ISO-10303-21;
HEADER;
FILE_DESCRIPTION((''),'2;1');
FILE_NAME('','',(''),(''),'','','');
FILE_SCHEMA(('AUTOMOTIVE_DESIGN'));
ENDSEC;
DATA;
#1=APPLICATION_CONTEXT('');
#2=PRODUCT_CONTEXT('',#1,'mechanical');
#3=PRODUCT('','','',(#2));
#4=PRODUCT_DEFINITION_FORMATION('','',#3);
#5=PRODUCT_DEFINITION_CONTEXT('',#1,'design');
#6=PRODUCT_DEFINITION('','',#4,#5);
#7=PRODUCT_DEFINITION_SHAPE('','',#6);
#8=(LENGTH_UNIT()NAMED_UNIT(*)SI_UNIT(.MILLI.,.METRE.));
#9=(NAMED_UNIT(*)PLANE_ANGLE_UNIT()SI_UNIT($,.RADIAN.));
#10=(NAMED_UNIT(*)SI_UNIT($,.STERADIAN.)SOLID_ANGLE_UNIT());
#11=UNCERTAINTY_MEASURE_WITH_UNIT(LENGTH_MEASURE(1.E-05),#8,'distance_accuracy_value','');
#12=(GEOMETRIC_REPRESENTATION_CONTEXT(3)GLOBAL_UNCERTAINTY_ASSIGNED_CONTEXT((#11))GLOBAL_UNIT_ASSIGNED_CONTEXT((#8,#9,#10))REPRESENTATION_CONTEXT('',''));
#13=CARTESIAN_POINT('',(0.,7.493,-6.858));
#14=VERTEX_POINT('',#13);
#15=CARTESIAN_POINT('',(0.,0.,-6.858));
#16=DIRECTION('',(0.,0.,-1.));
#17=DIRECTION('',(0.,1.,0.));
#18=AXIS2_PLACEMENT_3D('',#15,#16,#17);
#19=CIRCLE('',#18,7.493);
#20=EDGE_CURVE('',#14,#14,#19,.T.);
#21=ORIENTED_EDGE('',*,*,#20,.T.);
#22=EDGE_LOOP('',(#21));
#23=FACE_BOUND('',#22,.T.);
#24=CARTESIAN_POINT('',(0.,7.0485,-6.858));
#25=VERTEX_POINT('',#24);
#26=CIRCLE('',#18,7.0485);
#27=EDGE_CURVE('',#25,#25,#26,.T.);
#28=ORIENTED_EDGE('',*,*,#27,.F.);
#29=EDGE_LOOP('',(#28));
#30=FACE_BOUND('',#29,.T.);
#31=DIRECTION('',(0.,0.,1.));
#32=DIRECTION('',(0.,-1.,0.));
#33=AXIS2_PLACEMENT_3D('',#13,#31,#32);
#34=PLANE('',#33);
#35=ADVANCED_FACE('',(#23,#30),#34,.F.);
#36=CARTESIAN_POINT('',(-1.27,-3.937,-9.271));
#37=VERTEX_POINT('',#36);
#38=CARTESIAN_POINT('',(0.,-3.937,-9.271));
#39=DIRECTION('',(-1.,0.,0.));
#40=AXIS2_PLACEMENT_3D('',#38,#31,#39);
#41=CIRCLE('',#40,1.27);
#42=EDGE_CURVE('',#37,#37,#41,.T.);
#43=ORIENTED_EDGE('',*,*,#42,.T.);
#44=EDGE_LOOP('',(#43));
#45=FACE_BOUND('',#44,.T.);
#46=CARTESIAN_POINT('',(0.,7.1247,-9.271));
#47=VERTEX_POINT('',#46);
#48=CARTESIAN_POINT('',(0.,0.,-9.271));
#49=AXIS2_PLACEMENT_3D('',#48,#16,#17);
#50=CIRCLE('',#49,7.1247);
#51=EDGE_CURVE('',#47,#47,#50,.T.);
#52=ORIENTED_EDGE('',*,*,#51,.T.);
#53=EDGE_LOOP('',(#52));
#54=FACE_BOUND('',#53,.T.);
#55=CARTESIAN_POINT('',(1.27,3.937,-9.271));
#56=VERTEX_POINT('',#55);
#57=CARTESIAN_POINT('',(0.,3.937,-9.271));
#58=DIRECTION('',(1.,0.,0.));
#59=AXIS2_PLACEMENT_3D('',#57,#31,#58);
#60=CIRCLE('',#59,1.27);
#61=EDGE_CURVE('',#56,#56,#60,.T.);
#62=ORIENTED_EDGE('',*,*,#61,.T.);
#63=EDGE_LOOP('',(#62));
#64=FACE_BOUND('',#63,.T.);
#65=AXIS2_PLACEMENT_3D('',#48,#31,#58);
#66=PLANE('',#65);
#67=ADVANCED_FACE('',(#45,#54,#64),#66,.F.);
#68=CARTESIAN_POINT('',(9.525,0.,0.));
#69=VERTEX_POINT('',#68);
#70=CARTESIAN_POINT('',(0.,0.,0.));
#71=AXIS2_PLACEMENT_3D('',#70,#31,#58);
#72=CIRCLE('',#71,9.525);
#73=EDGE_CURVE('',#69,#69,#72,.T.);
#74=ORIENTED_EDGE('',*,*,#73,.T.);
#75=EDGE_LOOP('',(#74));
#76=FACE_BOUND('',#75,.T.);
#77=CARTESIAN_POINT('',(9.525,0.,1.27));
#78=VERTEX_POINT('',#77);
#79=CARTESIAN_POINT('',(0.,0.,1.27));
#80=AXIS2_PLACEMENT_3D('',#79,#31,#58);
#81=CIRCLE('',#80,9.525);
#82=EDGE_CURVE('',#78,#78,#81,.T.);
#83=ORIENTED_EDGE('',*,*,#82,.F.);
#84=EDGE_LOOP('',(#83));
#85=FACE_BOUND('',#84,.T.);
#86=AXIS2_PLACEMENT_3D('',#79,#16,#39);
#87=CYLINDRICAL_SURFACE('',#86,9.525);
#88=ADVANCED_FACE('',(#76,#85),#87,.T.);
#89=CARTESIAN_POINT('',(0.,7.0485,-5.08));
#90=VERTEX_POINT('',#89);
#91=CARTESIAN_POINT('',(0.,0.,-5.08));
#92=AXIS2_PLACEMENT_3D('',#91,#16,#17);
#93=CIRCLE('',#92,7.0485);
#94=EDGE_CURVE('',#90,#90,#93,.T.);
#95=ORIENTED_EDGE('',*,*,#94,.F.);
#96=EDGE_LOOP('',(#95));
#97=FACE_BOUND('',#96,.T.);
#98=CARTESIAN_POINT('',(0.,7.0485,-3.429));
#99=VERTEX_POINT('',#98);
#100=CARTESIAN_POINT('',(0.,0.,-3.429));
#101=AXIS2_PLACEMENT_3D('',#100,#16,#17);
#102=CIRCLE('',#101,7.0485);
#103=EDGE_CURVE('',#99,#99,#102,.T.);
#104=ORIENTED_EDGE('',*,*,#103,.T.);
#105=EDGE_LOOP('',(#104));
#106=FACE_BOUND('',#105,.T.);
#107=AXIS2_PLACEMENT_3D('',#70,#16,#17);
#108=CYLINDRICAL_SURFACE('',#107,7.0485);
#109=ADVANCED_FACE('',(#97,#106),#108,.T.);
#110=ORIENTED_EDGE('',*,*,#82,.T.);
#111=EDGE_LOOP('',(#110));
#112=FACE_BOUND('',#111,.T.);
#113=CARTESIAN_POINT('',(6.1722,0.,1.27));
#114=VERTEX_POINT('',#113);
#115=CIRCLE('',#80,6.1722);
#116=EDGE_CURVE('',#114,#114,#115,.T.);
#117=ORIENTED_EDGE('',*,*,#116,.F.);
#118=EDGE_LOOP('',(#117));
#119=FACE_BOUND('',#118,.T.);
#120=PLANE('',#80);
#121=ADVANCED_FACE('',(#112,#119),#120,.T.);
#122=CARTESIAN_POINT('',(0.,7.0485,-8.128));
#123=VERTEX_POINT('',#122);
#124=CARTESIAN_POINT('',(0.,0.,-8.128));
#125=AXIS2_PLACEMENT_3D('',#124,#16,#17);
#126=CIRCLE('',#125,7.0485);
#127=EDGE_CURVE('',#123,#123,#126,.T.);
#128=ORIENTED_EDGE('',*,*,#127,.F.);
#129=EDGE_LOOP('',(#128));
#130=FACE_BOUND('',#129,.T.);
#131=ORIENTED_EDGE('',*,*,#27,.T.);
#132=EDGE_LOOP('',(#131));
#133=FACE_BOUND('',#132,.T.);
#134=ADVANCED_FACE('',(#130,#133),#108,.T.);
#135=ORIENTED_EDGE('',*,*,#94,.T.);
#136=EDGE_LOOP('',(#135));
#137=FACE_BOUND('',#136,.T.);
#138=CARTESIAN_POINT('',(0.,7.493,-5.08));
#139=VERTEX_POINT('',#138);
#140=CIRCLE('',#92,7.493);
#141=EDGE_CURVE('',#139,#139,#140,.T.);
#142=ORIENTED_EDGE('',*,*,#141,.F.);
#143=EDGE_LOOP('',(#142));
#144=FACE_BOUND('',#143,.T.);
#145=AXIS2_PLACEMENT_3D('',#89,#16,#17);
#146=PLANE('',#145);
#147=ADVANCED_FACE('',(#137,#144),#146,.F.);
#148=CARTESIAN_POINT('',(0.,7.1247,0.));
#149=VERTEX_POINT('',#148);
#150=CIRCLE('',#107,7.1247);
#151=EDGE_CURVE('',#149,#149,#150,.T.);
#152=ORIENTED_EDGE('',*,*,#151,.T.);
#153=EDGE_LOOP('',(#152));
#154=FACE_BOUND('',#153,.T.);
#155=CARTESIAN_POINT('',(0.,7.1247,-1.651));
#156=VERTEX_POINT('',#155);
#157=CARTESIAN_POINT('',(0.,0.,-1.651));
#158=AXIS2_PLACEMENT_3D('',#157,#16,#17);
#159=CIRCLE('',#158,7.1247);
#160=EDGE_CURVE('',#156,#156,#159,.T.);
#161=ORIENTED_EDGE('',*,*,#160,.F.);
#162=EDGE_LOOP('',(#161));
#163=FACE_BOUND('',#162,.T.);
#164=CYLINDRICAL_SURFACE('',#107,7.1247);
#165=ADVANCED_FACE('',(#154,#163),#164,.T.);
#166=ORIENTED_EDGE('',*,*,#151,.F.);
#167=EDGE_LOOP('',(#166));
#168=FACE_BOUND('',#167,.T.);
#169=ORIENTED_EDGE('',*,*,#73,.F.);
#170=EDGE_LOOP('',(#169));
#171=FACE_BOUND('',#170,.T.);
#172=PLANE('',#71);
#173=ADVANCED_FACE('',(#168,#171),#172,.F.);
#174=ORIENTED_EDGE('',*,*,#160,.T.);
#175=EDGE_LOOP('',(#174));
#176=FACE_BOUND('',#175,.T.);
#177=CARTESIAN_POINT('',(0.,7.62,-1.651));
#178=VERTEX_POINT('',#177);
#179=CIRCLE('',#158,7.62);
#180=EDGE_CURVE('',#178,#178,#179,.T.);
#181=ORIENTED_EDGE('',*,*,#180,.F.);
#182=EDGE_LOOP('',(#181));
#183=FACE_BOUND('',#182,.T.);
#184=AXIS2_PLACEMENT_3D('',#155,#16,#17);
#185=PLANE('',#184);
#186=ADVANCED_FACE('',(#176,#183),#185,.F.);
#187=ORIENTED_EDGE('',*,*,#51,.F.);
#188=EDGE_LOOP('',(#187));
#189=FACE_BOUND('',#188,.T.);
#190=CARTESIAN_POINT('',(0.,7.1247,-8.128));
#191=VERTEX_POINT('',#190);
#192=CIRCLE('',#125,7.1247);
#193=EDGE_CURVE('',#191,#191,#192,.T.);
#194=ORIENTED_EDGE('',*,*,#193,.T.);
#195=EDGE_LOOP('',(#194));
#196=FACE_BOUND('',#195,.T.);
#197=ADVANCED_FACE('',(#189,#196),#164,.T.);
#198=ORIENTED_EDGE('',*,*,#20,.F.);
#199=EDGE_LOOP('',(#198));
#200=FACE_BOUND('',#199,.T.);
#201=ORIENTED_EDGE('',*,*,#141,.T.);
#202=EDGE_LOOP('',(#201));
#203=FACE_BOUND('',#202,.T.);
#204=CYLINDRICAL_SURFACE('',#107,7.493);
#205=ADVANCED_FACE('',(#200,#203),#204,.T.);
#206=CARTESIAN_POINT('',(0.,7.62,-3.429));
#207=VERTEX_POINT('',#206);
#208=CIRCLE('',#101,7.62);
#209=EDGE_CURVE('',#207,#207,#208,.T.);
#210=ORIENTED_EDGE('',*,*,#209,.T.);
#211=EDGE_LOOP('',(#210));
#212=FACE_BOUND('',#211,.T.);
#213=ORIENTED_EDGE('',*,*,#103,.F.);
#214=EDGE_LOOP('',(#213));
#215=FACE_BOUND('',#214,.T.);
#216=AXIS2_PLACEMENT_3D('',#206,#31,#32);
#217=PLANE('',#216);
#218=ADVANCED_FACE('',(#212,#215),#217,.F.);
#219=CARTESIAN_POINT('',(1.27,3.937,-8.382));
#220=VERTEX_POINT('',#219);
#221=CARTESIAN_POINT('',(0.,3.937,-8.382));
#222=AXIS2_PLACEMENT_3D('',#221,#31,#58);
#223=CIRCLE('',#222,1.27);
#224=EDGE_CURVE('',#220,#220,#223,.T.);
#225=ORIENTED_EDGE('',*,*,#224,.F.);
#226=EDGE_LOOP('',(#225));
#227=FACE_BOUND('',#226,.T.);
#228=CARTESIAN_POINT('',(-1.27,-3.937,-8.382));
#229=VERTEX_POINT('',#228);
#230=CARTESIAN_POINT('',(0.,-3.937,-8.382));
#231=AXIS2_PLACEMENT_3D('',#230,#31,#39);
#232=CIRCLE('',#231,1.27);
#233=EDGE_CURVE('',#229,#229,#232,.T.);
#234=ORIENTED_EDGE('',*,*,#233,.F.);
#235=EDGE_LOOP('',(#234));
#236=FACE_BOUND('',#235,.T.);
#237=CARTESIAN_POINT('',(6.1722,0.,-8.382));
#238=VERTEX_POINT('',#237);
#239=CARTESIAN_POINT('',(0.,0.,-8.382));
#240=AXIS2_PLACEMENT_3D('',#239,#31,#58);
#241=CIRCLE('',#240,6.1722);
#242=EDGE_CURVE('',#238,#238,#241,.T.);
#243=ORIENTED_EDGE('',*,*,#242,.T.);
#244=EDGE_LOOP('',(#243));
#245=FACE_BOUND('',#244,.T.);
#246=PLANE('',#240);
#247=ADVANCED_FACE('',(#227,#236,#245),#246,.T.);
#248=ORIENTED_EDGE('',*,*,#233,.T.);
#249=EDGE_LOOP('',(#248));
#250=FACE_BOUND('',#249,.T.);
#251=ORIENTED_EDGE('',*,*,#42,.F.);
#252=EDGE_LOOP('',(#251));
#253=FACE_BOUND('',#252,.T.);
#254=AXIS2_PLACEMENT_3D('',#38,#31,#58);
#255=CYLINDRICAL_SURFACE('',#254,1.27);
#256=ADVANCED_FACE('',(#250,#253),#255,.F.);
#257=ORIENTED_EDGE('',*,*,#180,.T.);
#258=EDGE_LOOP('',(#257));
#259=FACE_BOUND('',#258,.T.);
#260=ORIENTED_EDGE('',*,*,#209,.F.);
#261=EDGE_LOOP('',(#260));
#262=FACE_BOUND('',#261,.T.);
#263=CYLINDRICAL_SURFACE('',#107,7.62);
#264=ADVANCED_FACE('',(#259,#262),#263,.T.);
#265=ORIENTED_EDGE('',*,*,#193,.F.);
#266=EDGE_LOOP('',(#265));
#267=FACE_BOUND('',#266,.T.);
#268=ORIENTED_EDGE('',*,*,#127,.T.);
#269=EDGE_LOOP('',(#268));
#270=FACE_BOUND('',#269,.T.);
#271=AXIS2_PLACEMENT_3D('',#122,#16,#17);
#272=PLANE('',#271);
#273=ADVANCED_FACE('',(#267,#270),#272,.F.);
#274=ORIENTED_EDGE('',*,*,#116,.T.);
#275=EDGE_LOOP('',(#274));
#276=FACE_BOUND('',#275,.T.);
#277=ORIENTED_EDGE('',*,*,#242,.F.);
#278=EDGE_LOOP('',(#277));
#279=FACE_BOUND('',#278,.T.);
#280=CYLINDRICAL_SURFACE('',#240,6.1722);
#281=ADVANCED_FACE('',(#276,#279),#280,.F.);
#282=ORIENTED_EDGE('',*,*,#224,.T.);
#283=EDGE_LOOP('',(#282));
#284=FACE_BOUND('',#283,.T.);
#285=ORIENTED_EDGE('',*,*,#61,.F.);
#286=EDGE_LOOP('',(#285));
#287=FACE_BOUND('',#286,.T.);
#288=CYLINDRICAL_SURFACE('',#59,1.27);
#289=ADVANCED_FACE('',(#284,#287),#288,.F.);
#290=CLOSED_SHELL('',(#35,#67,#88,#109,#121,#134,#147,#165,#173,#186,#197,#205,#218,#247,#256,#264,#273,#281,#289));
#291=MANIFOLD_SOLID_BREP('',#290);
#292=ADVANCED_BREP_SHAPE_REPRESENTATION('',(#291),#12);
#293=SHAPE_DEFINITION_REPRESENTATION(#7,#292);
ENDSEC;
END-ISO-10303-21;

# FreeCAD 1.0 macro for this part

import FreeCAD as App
import Part
import Sketcher
from FreeCAD import Vector
Q = App.Units.Quantity


def add_polygon(sketch, points):
    """Adds a closed chain of lines whose ends are joined by coincident constraints."""
    first, n = sketch.GeometryCount, len(points)
    for a, b in zip(points, points[1:] + points[:1]):
        sketch.addGeometry(Part.LineSegment(App.Vector(*a, 0), App.Vector(*b, 0)), False)
    for i in range(n):
        sketch.addConstraint(Sketcher.Constraint("Coincident", first + i, 2, first + (i + 1) % n, 1))

doc = App.newDocument("Part")
body = doc.addObject("PartDesign::Body", "Body")

# Sketch on XY plane
sketch1 = doc.addObject("Sketcher::SketchObject", "Sketch")
body.addObject(sketch1)
sketch1.AttachmentSupport = (doc.XY_Plane, [""])
sketch1.MapMode = "FlatFace"
sketch1.addGeometry(Part.Circle(Vector(0, 0, 0), Vector(0, 0, 1), 9.525), False)
sketch1.addConstraint([
    Sketcher.Constraint("Coincident", 0, 3, -1, 1),
    Sketcher.Constraint("Diameter", 0, Q("0.75 in")),
])
pad1 = doc.addObject("PartDesign::Pad", "Pad")
body.addObject(pad1)
pad1.Profile = sketch1
pad1.Length = Q("0.05 in")

# Sketch on XY plane
sketch2 = doc.addObject("Sketcher::SketchObject", "Sketch001")
body.addObject(sketch2)
sketch2.AttachmentSupport = (doc.XY_Plane, [""])
sketch2.MapMode = "FlatFace"
sketch2.AttachmentOffset = App.Placement(Vector(0, 0, 0.05 * 25.4), App.Rotation())
sketch2.addGeometry(Part.Circle(Vector(0, 0, 0), Vector(0, 0, 1), 8.3185), False)
sketch2.addConstraint([
    Sketcher.Constraint("Coincident", 0, 3, -1, 1),
    Sketcher.Constraint("Diameter", 0, Q("0.655 in")),
])
pad2 = doc.addObject("PartDesign::Pad", "Pad001")
body.addObject(pad2)
pad2.Profile = sketch2
pad2.Length = Q("0.415 in")
pad2.Reversed = True

# Sketch on XY plane
sketch3 = doc.addObject("Sketcher::SketchObject", "Sketch002")
body.addObject(sketch3)
sketch3.AttachmentSupport = (doc.XY_Plane, [""])
sketch3.MapMode = "FlatFace"
sketch3.AttachmentOffset = App.Placement(Vector(0, 0, 0.05 * 25.4), App.Rotation())
sketch3.addGeometry(Part.Circle(Vector(0, 0, 0), Vector(0, 0, 1), 6.1722), False)
sketch3.addConstraint([
    Sketcher.Constraint("Coincident", 0, 3, -1, 1),
    Sketcher.Constraint("Diameter", 0, Q("0.486 in")),
])
pocket1 = doc.addObject("PartDesign::Pocket", "Pocket")
body.addObject(pocket1)
pocket1.Profile = sketch3
pocket1.Length = Q("0.38 in")

# Sketch on XY plane
sketch4 = doc.addObject("Sketcher::SketchObject", "Sketch003")
body.addObject(sketch4)
sketch4.AttachmentSupport = (doc.XY_Plane, [""])
sketch4.MapMode = "FlatFace"
sketch4.AttachmentOffset = App.Placement(Vector(0, 0, -0.33 * 25.4), App.Rotation())
sketch4.addGeometry([
    Part.Circle(Vector(0, 3.937, 0), Vector(0, 0, 1), 1.27),
    Part.Circle(Vector(0, -3.937, 0), Vector(0, 0, 1), 1.27),
], False)
sketch4.addConstraint([
    Sketcher.Constraint("Equal", 0, 1),
    Sketcher.Constraint("Symmetric", 0, 3, 1, 3, -1, 1),
    Sketcher.Constraint("PointOnObject", 0, 3, -2),
    Sketcher.Constraint("Diameter", 0, Q("0.1 in")),
    Sketcher.Constraint("DistanceY", 1, 3, 0, 3, Q("0.31 in")),
])
pocket2 = doc.addObject("PartDesign::Pocket", "Pocket001")
body.addObject(pocket2)
pocket2.Profile = sketch4
pocket2.Type = "ThroughAll"

# Sketch on YZ plane
sketch5 = doc.addObject("Sketcher::SketchObject", "Sketch004")
body.addObject(sketch5)
sketch5.AttachmentSupport = (doc.YZ_Plane, [""])
sketch5.MapMode = "FlatFace"
add_polygon(sketch5, [(9.525, 0), (7.1247, 0), (7.1247, -1.651), (7.62, -1.651), (7.62, -3.429), (7.0485, -3.429), (7.0485, -5.08), (7.493, -5.08), (7.493, -6.858), (7.0485, -6.858), (7.0485, -8.128), (7.1247, -8.128), (7.1247, -9.271), (9.525, -9.271)])  # lines 0-13
sketch5.addConstraint([
    Sketcher.Constraint("Horizontal", 0),
    Sketcher.Constraint("Vertical", 1),
    Sketcher.Constraint("Horizontal", 2),
    Sketcher.Constraint("Vertical", 3),
    Sketcher.Constraint("Horizontal", 4),
    Sketcher.Constraint("Vertical", 5),
    Sketcher.Constraint("Horizontal", 6),
    Sketcher.Constraint("Vertical", 7),
    Sketcher.Constraint("Horizontal", 8),
    Sketcher.Constraint("Vertical", 9),
    Sketcher.Constraint("Horizontal", 10),
    Sketcher.Constraint("Vertical", 11),
    Sketcher.Constraint("Horizontal", 12),
    Sketcher.Constraint("Vertical", 13),
    Sketcher.Constraint("PointOnObject", 0, 2, -1),
    Sketcher.Constraint("Vertical", 5, 2, 8, 2),
    Sketcher.Constraint("Vertical", 1, 2, 10, 2),
    Sketcher.Constraint("Equal", 1, 5),
    Sketcher.Constraint("Equal", 3, 7),
    Sketcher.Constraint("DistanceY", 3, 2, 3, 1, Q("0.07 in")),
    Sketcher.Constraint("DistanceY", 9, 2, 9, 1, Q("0.05 in")),
    Sketcher.Constraint("DistanceX", -1, 1, 2, 2, Q("0.3 in")),
    Sketcher.Constraint("DistanceY", 5, 2, -1, 1, Q("0.2 in")),
    Sketcher.Constraint("DistanceX", 10, 1, 10, 2, Q("0.003 in")),
    Sketcher.Constraint("DistanceY", 11, 2, 11, 1, Q("0.045 in")),
    Sketcher.Constraint("DistanceX", 7, 2, 12, 2, Q("0.08 in")),
    Sketcher.Constraint("DistanceX", 0, 2, 0, 1, Q("0.0945 in")),
    Sketcher.Constraint("DistanceX", 2, 1, 2, 2, Q("0.0195 in")),
])
groove = doc.addObject("PartDesign::Groove", "Groove")
body.addObject(groove)
groove.Profile = sketch5
groove.ReferenceAxis = (sketch5, ["V_Axis"])
groove.Angle = 360

doc.recompute()
